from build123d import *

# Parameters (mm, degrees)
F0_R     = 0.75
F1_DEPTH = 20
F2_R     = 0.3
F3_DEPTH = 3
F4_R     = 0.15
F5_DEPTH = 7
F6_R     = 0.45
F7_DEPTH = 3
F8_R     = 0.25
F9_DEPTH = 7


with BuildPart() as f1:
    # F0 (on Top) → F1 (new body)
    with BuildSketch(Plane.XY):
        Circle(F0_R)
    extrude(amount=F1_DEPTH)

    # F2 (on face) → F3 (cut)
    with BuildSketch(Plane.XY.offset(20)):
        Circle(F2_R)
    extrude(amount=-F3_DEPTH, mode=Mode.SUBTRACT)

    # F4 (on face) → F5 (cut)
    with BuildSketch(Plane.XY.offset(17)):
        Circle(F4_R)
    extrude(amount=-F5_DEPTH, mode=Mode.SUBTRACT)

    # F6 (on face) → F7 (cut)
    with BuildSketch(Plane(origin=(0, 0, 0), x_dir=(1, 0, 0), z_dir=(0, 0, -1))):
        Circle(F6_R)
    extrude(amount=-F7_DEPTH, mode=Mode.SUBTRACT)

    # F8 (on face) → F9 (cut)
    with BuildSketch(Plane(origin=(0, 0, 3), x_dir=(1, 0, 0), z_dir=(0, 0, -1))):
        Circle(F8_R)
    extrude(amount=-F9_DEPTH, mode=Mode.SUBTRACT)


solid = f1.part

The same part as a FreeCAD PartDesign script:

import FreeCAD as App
import Part
import Sketcher

doc = App.newDocument("Part")
params = doc.addObject("Spreadsheet::Sheet", "Params")
for row, (alias, value) in enumerate([
    ("sketch1_diameter", "1.5 mm"),
    ("pad1_length", "20 mm"),
    ("sketch2_diameter", "0.6 mm"),
    ("pocket1_length", "3 mm"),
    ("sketch3_diameter", "0.3 mm"),
    ("pocket2_length", "7 mm"),
    ("sketch4_diameter", "0.9 mm"),
    ("pocket3_length", "3 mm"),
    ("sketch5_diameter", "0.5 mm"),
    ("pocket4_length", "7 mm"),
], start=1):
    params.set(f"A{row}", alias)
    params.set(f"B{row}", "=" + value)
    params.setAlias(f"B{row}", alias)

body = doc.addObject("PartDesign::Body", "Body")

# Sketch on XY plane
sketch1 = body.newObject("Sketcher::SketchObject", "Sketch")
sketch1.AttachmentSupport = (doc.getObject("XY_Plane"), [""])
sketch1.MapMode = "FlatFace"
sketch1.addGeometry(Part.Circle(App.Vector(0, 0, 0), App.Vector(0, 0, 1), 0.8), False)
sketch1.addConstraint(Sketcher.Constraint("Coincident", 0, 3, -1, 1))
sketch1.addConstraint(Sketcher.Constraint("Diameter", 0, 1.5))
sketch1.setExpression("Constraints[1]", "Params.sketch1_diameter")
pad1 = body.newObject("PartDesign::Pad", "Pad")
pad1.Profile = sketch1
pad1.setExpression("Length", "Params.pad1_length")

# Sketch on XY plane
sketch2 = body.newObject("Sketcher::SketchObject", "Sketch001")
sketch2.AttachmentSupport = (doc.getObject("XY_Plane"), [""])
sketch2.MapMode = "FlatFace"
sketch2.AttachmentOffset = App.Placement(App.Vector(0, 0, 20), App.Rotation())
sketch2.addGeometry(Part.Circle(App.Vector(0, 0, 0), App.Vector(0, 0, 1), 0.3), False)
sketch2.addConstraint(Sketcher.Constraint("Coincident", 0, 3, -1, 1))
sketch2.addConstraint(Sketcher.Constraint("Diameter", 0, 0.6))
sketch2.setExpression("Constraints[1]", "Params.sketch2_diameter")
pocket1 = body.newObject("PartDesign::Pocket", "Pocket")
pocket1.Profile = sketch2
pocket1.setExpression("Length", "Params.pocket1_length")

# Sketch on XY plane
sketch3 = body.newObject("Sketcher::SketchObject", "Sketch002")
sketch3.AttachmentSupport = (doc.getObject("XY_Plane"), [""])
sketch3.MapMode = "FlatFace"
sketch3.AttachmentOffset = App.Placement(App.Vector(0, 0, 17), App.Rotation())
sketch3.addGeometry(Part.Circle(App.Vector(0, 0, 0), App.Vector(0, 0, 1), 0.15), False)
sketch3.addConstraint(Sketcher.Constraint("Coincident", 0, 3, -1, 1))
sketch3.addConstraint(Sketcher.Constraint("Diameter", 0, 0.3))
sketch3.setExpression("Constraints[1]", "Params.sketch3_diameter")
pocket2 = body.newObject("PartDesign::Pocket", "Pocket001")
pocket2.Profile = sketch3
pocket2.setExpression("Length", "Params.pocket2_length")

# Sketch on XY plane
sketch4 = body.newObject("Sketcher::SketchObject", "Sketch003")
sketch4.AttachmentSupport = (doc.getObject("XY_Plane"), [""])
sketch4.MapMode = "FlatFace"
sketch4.addGeometry(Part.Circle(App.Vector(0, 0, 0), App.Vector(0, 0, 1), 0.45), False)
sketch4.addConstraint(Sketcher.Constraint("Coincident", 0, 3, -1, 1))
sketch4.addConstraint(Sketcher.Constraint("Diameter", 0, 0.9))
sketch4.setExpression("Constraints[1]", "Params.sketch4_diameter")
pocket3 = body.newObject("PartDesign::Pocket", "Pocket002")
pocket3.Profile = sketch4
pocket3.setExpression("Length", "Params.pocket3_length")
pocket3.Reversed = True

# Sketch on XY plane
sketch5 = body.newObject("Sketcher::SketchObject", "Sketch004")
sketch5.AttachmentSupport = (doc.getObject("XY_Plane"), [""])
sketch5.MapMode = "FlatFace"
sketch5.AttachmentOffset = App.Placement(App.Vector(0, 0, 3), App.Rotation())
sketch5.addGeometry(Part.Circle(App.Vector(0, 0, 0), App.Vector(0, 0, 1), 0.25), False)
sketch5.addConstraint(Sketcher.Constraint("Coincident", 0, 3, -1, 1))
sketch5.addConstraint(Sketcher.Constraint("Diameter", 0, 0.5))
sketch5.setExpression("Constraints[1]", "Params.sketch5_diameter")
pocket4 = body.newObject("PartDesign::Pocket", "Pocket003")
pocket4.Profile = sketch5
pocket4.setExpression("Length", "Params.pocket4_length")
pocket4.Reversed = True

doc.recompute()
